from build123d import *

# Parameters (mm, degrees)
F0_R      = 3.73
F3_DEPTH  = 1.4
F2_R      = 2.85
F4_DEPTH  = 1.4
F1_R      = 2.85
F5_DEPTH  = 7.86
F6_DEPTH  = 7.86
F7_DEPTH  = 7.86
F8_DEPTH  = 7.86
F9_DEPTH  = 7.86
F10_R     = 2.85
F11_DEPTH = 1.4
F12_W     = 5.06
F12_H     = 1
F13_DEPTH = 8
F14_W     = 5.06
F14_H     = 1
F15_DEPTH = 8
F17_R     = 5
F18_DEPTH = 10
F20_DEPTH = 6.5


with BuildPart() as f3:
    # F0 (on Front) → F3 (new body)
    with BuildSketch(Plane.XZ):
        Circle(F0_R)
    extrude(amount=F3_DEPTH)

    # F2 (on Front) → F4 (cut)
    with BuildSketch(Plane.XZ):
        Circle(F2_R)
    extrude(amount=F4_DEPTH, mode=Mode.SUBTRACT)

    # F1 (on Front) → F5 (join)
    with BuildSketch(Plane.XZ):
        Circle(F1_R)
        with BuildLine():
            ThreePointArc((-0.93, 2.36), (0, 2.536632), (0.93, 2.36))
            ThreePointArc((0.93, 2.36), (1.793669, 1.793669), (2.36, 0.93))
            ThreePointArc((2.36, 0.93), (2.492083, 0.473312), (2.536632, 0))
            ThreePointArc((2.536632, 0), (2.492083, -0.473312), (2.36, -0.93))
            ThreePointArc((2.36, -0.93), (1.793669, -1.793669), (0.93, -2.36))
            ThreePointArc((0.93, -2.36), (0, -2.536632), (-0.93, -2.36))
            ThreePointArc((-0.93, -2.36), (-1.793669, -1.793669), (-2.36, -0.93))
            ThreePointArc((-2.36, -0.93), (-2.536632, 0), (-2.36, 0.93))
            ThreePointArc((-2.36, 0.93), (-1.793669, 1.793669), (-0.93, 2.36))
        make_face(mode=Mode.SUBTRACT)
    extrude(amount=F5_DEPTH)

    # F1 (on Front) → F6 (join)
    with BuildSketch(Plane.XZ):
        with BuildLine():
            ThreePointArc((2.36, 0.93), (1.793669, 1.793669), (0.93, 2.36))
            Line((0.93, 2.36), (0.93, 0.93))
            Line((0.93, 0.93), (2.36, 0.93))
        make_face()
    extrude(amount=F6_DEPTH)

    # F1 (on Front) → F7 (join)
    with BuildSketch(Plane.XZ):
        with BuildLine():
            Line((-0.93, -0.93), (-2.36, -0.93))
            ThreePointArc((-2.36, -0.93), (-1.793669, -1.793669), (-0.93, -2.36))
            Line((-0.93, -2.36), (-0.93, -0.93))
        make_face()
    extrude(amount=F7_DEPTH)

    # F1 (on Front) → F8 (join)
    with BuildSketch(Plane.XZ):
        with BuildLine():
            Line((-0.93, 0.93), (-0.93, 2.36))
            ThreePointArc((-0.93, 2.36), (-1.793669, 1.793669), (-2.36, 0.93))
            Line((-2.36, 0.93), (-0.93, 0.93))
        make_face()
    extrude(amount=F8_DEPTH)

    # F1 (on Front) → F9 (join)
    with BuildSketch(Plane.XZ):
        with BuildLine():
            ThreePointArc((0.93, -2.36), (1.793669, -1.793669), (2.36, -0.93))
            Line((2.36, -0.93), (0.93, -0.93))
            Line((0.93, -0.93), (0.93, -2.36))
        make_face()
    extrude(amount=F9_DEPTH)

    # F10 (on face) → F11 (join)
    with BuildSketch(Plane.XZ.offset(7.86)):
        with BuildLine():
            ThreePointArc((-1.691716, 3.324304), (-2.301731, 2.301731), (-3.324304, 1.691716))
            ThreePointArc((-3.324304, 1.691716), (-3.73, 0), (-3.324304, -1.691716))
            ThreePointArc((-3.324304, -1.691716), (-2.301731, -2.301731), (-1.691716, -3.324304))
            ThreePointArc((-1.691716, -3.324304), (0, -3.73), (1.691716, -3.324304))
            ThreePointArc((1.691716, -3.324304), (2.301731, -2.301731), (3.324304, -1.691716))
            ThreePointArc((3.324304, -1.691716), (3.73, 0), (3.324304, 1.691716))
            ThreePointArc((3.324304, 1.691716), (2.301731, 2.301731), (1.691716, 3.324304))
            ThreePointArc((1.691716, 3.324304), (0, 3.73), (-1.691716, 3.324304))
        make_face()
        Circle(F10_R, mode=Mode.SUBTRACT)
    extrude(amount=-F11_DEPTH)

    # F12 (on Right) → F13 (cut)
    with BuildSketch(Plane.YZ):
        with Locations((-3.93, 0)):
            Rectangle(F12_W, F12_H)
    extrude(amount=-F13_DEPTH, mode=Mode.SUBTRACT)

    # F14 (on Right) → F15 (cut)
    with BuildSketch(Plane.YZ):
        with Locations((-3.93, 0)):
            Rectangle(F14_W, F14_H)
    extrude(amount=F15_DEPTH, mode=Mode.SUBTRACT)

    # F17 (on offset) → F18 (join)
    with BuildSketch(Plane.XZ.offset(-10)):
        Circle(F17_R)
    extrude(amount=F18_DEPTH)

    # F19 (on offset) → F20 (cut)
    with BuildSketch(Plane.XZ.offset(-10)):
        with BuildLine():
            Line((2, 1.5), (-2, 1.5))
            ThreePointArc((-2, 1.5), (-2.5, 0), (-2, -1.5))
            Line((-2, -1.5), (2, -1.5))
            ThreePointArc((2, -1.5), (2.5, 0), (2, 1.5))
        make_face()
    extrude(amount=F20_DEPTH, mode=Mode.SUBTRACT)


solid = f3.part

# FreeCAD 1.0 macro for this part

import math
import FreeCAD as App
import Part
import Sketcher

V = App.Vector
Q = App.Units.Quantity

doc = App.newDocument("Part")
params = doc.addObject("Spreadsheet::Sheet", "Params")
for row, (alias, value) in enumerate([
    ("sketch1_diameter", "7.46 mm"),
    ("pad1_length", "1.4 mm"),
    ("sketch2_diameter", "5.7 mm"),
    ("pocket1_length", "1.4 mm"),
    ("sketch3_diameter", "5.7 mm"),
    ("pad2_length", "7.86 mm"),
    ("sketch4_width", "1.43 mm"),
    ("pad3_length", "7.86 mm"),
    ("sketch5_width", "1.43 mm"),
    ("pad4_length", "7.86 mm"),
    ("sketch6_width", "1.43 mm"),
    ("pad5_length", "7.86 mm"),
    ("sketch7_width", "1.43 mm"),
    ("pad6_length", "7.86 mm"),
    ("sketch8_diameter", "5.7 mm"),
    ("sketch8_radius", "3.73 mm"),
    ("pad7_length", "1.4 mm"),
    ("sketch9_height", "1 mm"),
    ("sketch9_width", "5.06 mm"),
    ("pocket2_length", "8 mm"),
    ("sketch10_height", "1 mm"),
    ("sketch10_width", "5.06 mm"),
    ("pocket3_length", "8 mm"),
    ("sketch11_diameter", "10 mm"),
    ("pad8_length", "10 mm"),
    ("sketch12_radius", "2.5 mm"),
    ("sketch12_width", "4 mm"),
    ("pocket4_length", "6.5 mm"),
], start=1):
    params.set(f"A{row}", alias)
    params.set(f"B{row}", "=" + value)
    params.setAlias(f"B{row}", alias)

body = doc.addObject("PartDesign::Body", "Body")

# Sketch on XZ plane
sketch1 = body.newObject("Sketcher::SketchObject", "Sketch")
sketch1.AttachmentSupport = (doc.getObject("XZ_Plane"), [""])
sketch1.MapMode = "FlatFace"
sketch1.addGeometry(Part.Circle(V(0, 0, 0), V(0, 0, 1), 3.7), False)
sketch1.addConstraint([
    Sketcher.Constraint("Coincident", 0, 3, -1, 1),
    Sketcher.Constraint("Diameter", 0, Q("7.46 mm")),
])
sketch1.setExpression("Constraints[1]", "Params.sketch1_diameter")
pad1 = body.newObject("PartDesign::Pad", "Pad")
pad1.Profile = sketch1
pad1.setExpression("Length", "Params.pad1_length")

# Sketch on XZ plane
sketch2 = body.newObject("Sketcher::SketchObject", "Sketch001")
sketch2.AttachmentSupport = (doc.getObject("XZ_Plane"), [""])
sketch2.MapMode = "FlatFace"
sketch2.addGeometry(Part.Circle(V(0, 0, 0), V(0, 0, 1), 2.9), False)
sketch2.addConstraint([
    Sketcher.Constraint("Coincident", 0, 3, -1, 1),
    Sketcher.Constraint("Diameter", 0, Q("5.7 mm")),
])
sketch2.setExpression("Constraints[1]", "Params.sketch2_diameter")
pocket1 = body.newObject("PartDesign::Pocket", "Pocket")
pocket1.Profile = sketch2
pocket1.setExpression("Length", "Params.pocket1_length")
pocket1.Reversed = True

# Sketch on XZ plane
sketch3 = body.newObject("Sketcher::SketchObject", "Sketch002")
sketch3.AttachmentSupport = (doc.getObject("XZ_Plane"), [""])
sketch3.MapMode = "FlatFace"
sketch3.addGeometry([
    Part.Circle(V(0, 0, 0), V(0, 0, 1), 2.9),  # 0
    Part.ArcOfCircle(Part.Circle(V(0, 0, 0), V(0, 0, 1), 2.5), math.radians(112), math.radians(158)),  # 1
    Part.ArcOfCircle(Part.Circle(V(0, 0, 0), V(0, 0, 1), 2.5), math.radians(68), math.radians(112)),  # 2
    Part.ArcOfCircle(Part.Circle(V(0, 0, 0), V(0, 0, 1), 2.5), math.radians(22), math.radians(68)),  # 3
    Part.ArcOfCircle(Part.Circle(V(0, 0, 0), V(0, 0, 1), 2.5), math.radians(0), math.radians(22)),  # 4
    Part.ArcOfCircle(Part.Circle(V(0, 0, 0), V(0, 0, 1), 2.5), math.radians(-22), math.radians(0)),  # 5
    Part.ArcOfCircle(Part.Circle(V(0, 0, 0), V(0, 0, 1), 2.5), math.radians(-68), math.radians(-22)),  # 6
    Part.ArcOfCircle(Part.Circle(V(0, 0, 0), V(0, 0, 1), 2.5), math.radians(-112), math.radians(-68)),  # 7
    Part.ArcOfCircle(Part.Circle(V(0, 0, 0), V(0, 0, 1), 2.5), math.radians(-158), math.radians(-112)),  # 8
    Part.ArcOfCircle(Part.Circle(V(0, 0, 0), V(0, 0, 1), 2.5), math.radians(158), math.radians(202)),  # 9
], False)
sketch3.addConstraint([
    Sketcher.Constraint("Tangent", 1, 1, 2, 2),
    Sketcher.Constraint("Tangent", 2, 1, 3, 2),
    Sketcher.Constraint("Tangent", 3, 1, 4, 2),
    Sketcher.Constraint("Tangent", 4, 1, 5, 2),
    Sketcher.Constraint("Tangent", 5, 1, 6, 2),
    Sketcher.Constraint("Tangent", 6, 1, 7, 2),
    Sketcher.Constraint("Tangent", 7, 1, 8, 2),
    Sketcher.Constraint("Tangent", 8, 1, 9, 2),
    Sketcher.Constraint("Tangent", 9, 1, 1, 2),
    Sketcher.Constraint("Coincident", 0, 3, -1, 1),
    Sketcher.Constraint("Coincident", 1, 3, -1, 1),
    Sketcher.Constraint("Coincident", 3, 3, -1, 1),
    Sketcher.Constraint("Coincident", 6, 3, -1, 1),
    Sketcher.Constraint("Coincident", 8, 3, -1, 1),
    Sketcher.Constraint("PointOnObject", 4, 1, -1),
    Sketcher.Constraint("Horizontal", 1, 1, 2, 1),
    Sketcher.Constraint("Horizontal", 6, 1, 7, 1),
    Sketcher.Constraint("Horizontal", 5, 1, 8, 1),
    Sketcher.Constraint("Horizontal", 3, 1, 9, 1),
    Sketcher.Constraint("Vertical", 3, 1, 5, 1),
    Sketcher.Constraint("Vertical", 2, 1, 6, 1),
    Sketcher.Constraint("Diameter", 0, Q("5.7 mm")),
    Sketcher.Constraint("DistanceX", 1, 1, -1, 1, Q("0.93 mm")),
    Sketcher.Constraint("DistanceY", -1, 1, 1, 1, Q("2.36 mm")),
    Sketcher.Constraint("DistanceX", -1, 1, 3, 1, Q("2.36 mm")),
])
sketch3.setExpression("Constraints[21]", "Params.sketch3_diameter")
pad2 = body.newObject("PartDesign::Pad", "Pad001")
pad2.Profile = sketch3
pad2.setExpression("Length", "Params.pad2_length")

# Sketch on XZ plane
sketch4 = body.newObject("Sketcher::SketchObject", "Sketch003")
sketch4.AttachmentSupport = (doc.getObject("XZ_Plane"), [""])
sketch4.MapMode = "FlatFace"
sketch4.addGeometry([
    Part.ArcOfCircle(Part.Circle(V(0, 0, 0), V(0, 0, 1), 2.5), math.radians(22), math.radians(68)),
    Part.LineSegment(V(0.9, 2.4, 0), V(0.9, 0.9, 0)),
    Part.LineSegment(V(0.9, 0.9, 0), V(2.4, 0.9, 0)),
], False)
sketch4.addConstraint([
    Sketcher.Constraint("Coincident", 0, 2, 1, 1),
    Sketcher.Constraint("Coincident", 1, 2, 2, 1),
    Sketcher.Constraint("Coincident", 2, 2, 0, 1),
    Sketcher.Constraint("Vertical", 1),
    Sketcher.Constraint("Horizontal", 2),
    Sketcher.Constraint("Coincident", 0, 3, -1, 1),
    Sketcher.Constraint("Equal", 2, 1),
    Sketcher.Constraint("DistanceX", 2, 1, 2, 2, Q("1.43 mm")),
    Sketcher.Constraint("DistanceX", -1, 1, 0, 2, Q("0.93 mm")),
])
sketch4.setExpression("Constraints[7]", "Params.sketch4_width")
pad3 = body.newObject("PartDesign::Pad", "Pad002")
pad3.Profile = sketch4
pad3.setExpression("Length", "Params.pad3_length")

# Sketch on XZ plane
sketch5 = body.newObject("Sketcher::SketchObject", "Sketch004")
sketch5.AttachmentSupport = (doc.getObject("XZ_Plane"), [""])
sketch5.MapMode = "FlatFace"
sketch5.addGeometry([
    Part.LineSegment(V(-0.9, -0.9, 0), V(-2.4, -0.9, 0)),
    Part.ArcOfCircle(Part.Circle(V(0, 0, 0), V(0, 0, 1), 2.5), math.radians(-158), math.radians(-112)),
    Part.LineSegment(V(-0.9, -2.4, 0), V(-0.9, -0.9, 0)),
], False)
sketch5.addConstraint([
    Sketcher.Constraint("Coincident", 0, 2, 1, 1),
    Sketcher.Constraint("Coincident", 1, 2, 2, 1),
    Sketcher.Constraint("Coincident", 2, 2, 0, 1),
    Sketcher.Constraint("Horizontal", 0),
    Sketcher.Constraint("Vertical", 2),
    Sketcher.Constraint("Coincident", 1, 3, -1, 1),
    Sketcher.Constraint("Equal", 0, 2),
    Sketcher.Constraint("DistanceX", 0, 2, 0, 1, Q("1.43 mm")),
    Sketcher.Constraint("DistanceX", 0, 2, -1, 1, Q("2.36 mm")),
])
sketch5.setExpression("Constraints[7]", "Params.sketch5_width")
pad4 = body.newObject("PartDesign::Pad", "Pad003")
pad4.Profile = sketch5
pad4.setExpression("Length", "Params.pad4_length")

# Sketch on XZ plane
sketch6 = body.newObject("Sketcher::SketchObject", "Sketch005")
sketch6.AttachmentSupport = (doc.getObject("XZ_Plane"), [""])
sketch6.MapMode = "FlatFace"
sketch6.addGeometry([
    Part.LineSegment(V(-0.9, 0.9, 0), V(-0.9, 2.4, 0)),
    Part.ArcOfCircle(Part.Circle(V(0, 0, 0), V(0, 0, 1), 2.5), math.radians(112), math.radians(158)),
    Part.LineSegment(V(-2.4, 0.9, 0), V(-0.9, 0.9, 0)),
], False)
sketch6.addConstraint([
    Sketcher.Constraint("Coincident", 0, 2, 1, 1),
    Sketcher.Constraint("Coincident", 1, 2, 2, 1),
    Sketcher.Constraint("Coincident", 2, 2, 0, 1),
    Sketcher.Constraint("Vertical", 0),
    Sketcher.Constraint("Horizontal", 2),
    Sketcher.Constraint("Coincident", 1, 3, -1, 1),
    Sketcher.Constraint("Equal", 2, 0),
    Sketcher.Constraint("DistanceX", 2, 1, 2, 2, Q("1.43 mm")),
    Sketcher.Constraint("DistanceX", 0, 2, -1, 1, Q("0.93 mm")),
])
sketch6.setExpression("Constraints[7]", "Params.sketch6_width")
pad5 = body.newObject("PartDesign::Pad", "Pad004")
pad5.Profile = sketch6
pad5.setExpression("Length", "Params.pad5_length")

# Sketch on XZ plane
sketch7 = body.newObject("Sketcher::SketchObject", "Sketch006")
sketch7.AttachmentSupport = (doc.getObject("XZ_Plane"), [""])
sketch7.MapMode = "FlatFace"
sketch7.addGeometry([
    Part.ArcOfCircle(Part.Circle(V(0, 0, 0), V(0, 0, 1), 2.5), math.radians(-68), math.radians(-22)),
    Part.LineSegment(V(2.4, -0.9, 0), V(0.9, -0.9, 0)),
    Part.LineSegment(V(0.9, -0.9, 0), V(0.9, -2.4, 0)),
], False)
sketch7.addConstraint([
    Sketcher.Constraint("Coincident", 0, 2, 1, 1),
    Sketcher.Constraint("Coincident", 1, 2, 2, 1),
    Sketcher.Constraint("Coincident", 2, 2, 0, 1),
    Sketcher.Constraint("Horizontal", 1),
    Sketcher.Constraint("Vertical", 2),
    Sketcher.Constraint("Coincident", 0, 3, -1, 1),
    Sketcher.Constraint("Equal", 1, 2),
    Sketcher.Constraint("DistanceX", 1, 2, 1, 1, Q("1.43 mm")),
    Sketcher.Constraint("DistanceX", -1, 1, 0, 2, Q("2.36 mm")),
])
sketch7.setExpression("Constraints[7]", "Params.sketch7_width")
pad6 = body.newObject("PartDesign::Pad", "Pad005")
pad6.Profile = sketch7
pad6.setExpression("Length", "Params.pad6_length")

# Sketch on XZ plane
sketch8 = body.newObject("Sketcher::SketchObject", "Sketch007")
sketch8.AttachmentSupport = (doc.getObject("XZ_Plane"), [""])
sketch8.MapMode = "FlatFace"
sketch8.AttachmentOffset = App.Placement(V(0, 0, 7.86), App.Rotation())
sketch8.addGeometry([
    Part.ArcOfCircle(Part.Circle(V(-4, 4, 0), V(0, 0, 1), 2.4), math.radians(-73), math.radians(-17)),  # 0
    Part.ArcOfCircle(Part.Circle(V(0, 0, 0), V(0, 0, 1), 3.7), math.radians(153), math.radians(207)),  # 1
    Part.ArcOfCircle(Part.Circle(V(-4, -4, 0), V(0, 0, 1), 2.4), math.radians(17), math.radians(73)),  # 2
    Part.ArcOfCircle(Part.Circle(V(0, 0, 0), V(0, 0, 1), 3.7), math.radians(-117), math.radians(-63)),  # 3
    Part.ArcOfCircle(Part.Circle(V(4, -4, 0), V(0, 0, 1), 2.4), math.radians(107), math.radians(163)),  # 4
    Part.ArcOfCircle(Part.Circle(V(0, 0, 0), V(0, 0, 1), 3.7), math.radians(-27), math.radians(27)),  # 5
    Part.ArcOfCircle(Part.Circle(V(4, 4, 0), V(0, 0, 1), 2.4), math.radians(-163), math.radians(-107)),  # 6
    Part.ArcOfCircle(Part.Circle(V(0, 0, 0), V(0, 0, 1), 3.7), math.radians(63), math.radians(117)),  # 7
    Part.Circle(V(0, 0, 0), V(0, 0, 1), 2.9),  # 8
], False)
sketch8.addConstraint([
    Sketcher.Constraint("Coincident", 0, 1, 1, 1),
    Sketcher.Constraint("Coincident", 1, 2, 2, 2),
    Sketcher.Constraint("Coincident", 2, 1, 3, 1),
    Sketcher.Constraint("Coincident", 3, 2, 4, 2),
    Sketcher.Constraint("Coincident", 4, 1, 5, 1),
    Sketcher.Constraint("Coincident", 5, 2, 6, 2),
    Sketcher.Constraint("Coincident", 6, 1, 7, 1),
    Sketcher.Constraint("Coincident", 7, 2, 0, 2),
    Sketcher.Constraint("Coincident", 1, 3, -1, 1),
    Sketcher.Constraint("Coincident", 3, 3, -1, 1),
    Sketcher.Constraint("Coincident", 5, 3, -1, 1),
    Sketcher.Constraint("Coincident", 7, 3, -1, 1),
    Sketcher.Constraint("Coincident", 8, 3, -1, 1),
    Sketcher.Constraint("Equal", 0, 2),
    Sketcher.Constraint("Equal", 1, 3),
    Sketcher.Constraint("Equal", 2, 4),
    Sketcher.Constraint("Equal", 3, 5),
    Sketcher.Constraint("Equal", 4, 6),
    Sketcher.Constraint("Equal", 5, 7),
    Sketcher.Constraint("Symmetric", 0, 3, 4, 3, -1, 1),
    Sketcher.Constraint("Symmetric", 2, 3, 6, 3, -1, 1),
    Sketcher.Constraint("Symmetric", 2, 3, 4, 3, -2),
    Sketcher.Constraint("Diameter", 8, Q("5.7 mm")),
    Sketcher.Constraint("Radius", 1, Q("3.73 mm")),
    Sketcher.Constraint("Radius", 0, Q("2.430004 mm")),
    Sketcher.Constraint("DistanceX", 0, 3, 0, 1, Q("0.695699 mm")),
    Sketcher.Constraint("DistanceY", 2, 3, 2, 1, Q("0.695699 mm")),
])
sketch8.setExpression("Constraints[22]", "Params.sketch8_diameter")
sketch8.setExpression("Constraints[23]", "Params.sketch8_radius")
pad7 = body.newObject("PartDesign::Pad", "Pad006")
pad7.Profile = sketch8
pad7.setExpression("Length", "Params.pad7_length")
pad7.Reversed = True

# Sketch on YZ plane
sketch9 = body.newObject("Sketcher::SketchObject", "Sketch008")
sketch9.AttachmentSupport = (doc.getObject("YZ_Plane"), [""])
sketch9.MapMode = "FlatFace"
sketch9.addGeometry([
    Part.LineSegment(V(-6.5, 0.5, 0), V(-6.5, -0.5, 0)),
    Part.LineSegment(V(-6.5, -0.5, 0), V(-1.4, -0.5, 0)),
    Part.LineSegment(V(-1.4, -0.5, 0), V(-1.4, 0.5, 0)),
    Part.LineSegment(V(-1.4, 0.5, 0), V(-6.5, 0.5, 0)),
], False)
sketch9.addConstraint([
    Sketcher.Constraint("Coincident", 0, 2, 1, 1),
    Sketcher.Constraint("Coincident", 1, 2, 2, 1),
    Sketcher.Constraint("Coincident", 2, 2, 3, 1),
    Sketcher.Constraint("Coincident", 3, 2, 0, 1),
    Sketcher.Constraint("Vertical", 0),
    Sketcher.Constraint("Horizontal", 1),
    Sketcher.Constraint("Vertical", 2),
    Sketcher.Constraint("Horizontal", 3),
    Sketcher.Constraint("DistanceY", 0, 2, 0, 1, Q("1 mm")),
    Sketcher.Constraint("DistanceX", 1, 1, 1, 2, Q("5.06 mm")),
    Sketcher.Constraint("DistanceY", 0, 2, -1, 1, Q("0.5 mm")),
    Sketcher.Constraint("DistanceX", 1, 2, -1, 1, Q("1.4 mm")),
])
sketch9.setExpression("Constraints[8]", "Params.sketch9_height")
sketch9.setExpression("Constraints[9]", "Params.sketch9_width")
pocket2 = body.newObject("PartDesign::Pocket", "Pocket001")
pocket2.Profile = sketch9
pocket2.setExpression("Length", "Params.pocket2_length")

# Sketch on YZ plane
sketch10 = body.newObject("Sketcher::SketchObject", "Sketch009")
sketch10.AttachmentSupport = (doc.getObject("YZ_Plane"), [""])
sketch10.MapMode = "FlatFace"
sketch10.addGeometry([
    Part.LineSegment(V(-6.5, 0.5, 0), V(-6.5, -0.5, 0)),
    Part.LineSegment(V(-6.5, -0.5, 0), V(-1.4, -0.5, 0)),
    Part.LineSegment(V(-1.4, -0.5, 0), V(-1.4, 0.5, 0)),
    Part.LineSegment(V(-1.4, 0.5, 0), V(-6.5, 0.5, 0)),
], False)
sketch10.addConstraint([
    Sketcher.Constraint("Coincident", 0, 2, 1, 1),
    Sketcher.Constraint("Coincident", 1, 2, 2, 1),
    Sketcher.Constraint("Coincident", 2, 2, 3, 1),
    Sketcher.Constraint("Coincident", 3, 2, 0, 1),
    Sketcher.Constraint("Vertical", 0),
    Sketcher.Constraint("Horizontal", 1),
    Sketcher.Constraint("Vertical", 2),
    Sketcher.Constraint("Horizontal", 3),
    Sketcher.Constraint("DistanceY", 0, 2, 0, 1, Q("1 mm")),
    Sketcher.Constraint("DistanceX", 1, 1, 1, 2, Q("5.06 mm")),
    Sketcher.Constraint("DistanceY", 0, 2, -1, 1, Q("0.5 mm")),
    Sketcher.Constraint("DistanceX", 1, 2, -1, 1, Q("1.4 mm")),
])
sketch10.setExpression("Constraints[8]", "Params.sketch10_height")
sketch10.setExpression("Constraints[9]", "Params.sketch10_width")
pocket3 = body.newObject("PartDesign::Pocket", "Pocket002")
pocket3.Profile = sketch10
pocket3.setExpression("Length", "Params.pocket3_length")
pocket3.Reversed = True

# Sketch on XZ plane
sketch11 = body.newObject("Sketcher::SketchObject", "Sketch010")
sketch11.AttachmentSupport = (doc.getObject("XZ_Plane"), [""])
sketch11.MapMode = "FlatFace"
sketch11.AttachmentOffset = App.Placement(V(0, 0, -10), App.Rotation())
sketch11.addGeometry(Part.Circle(V(0, 0, 0), V(0, 0, 1), 5), False)
sketch11.addConstraint([
    Sketcher.Constraint("Coincident", 0, 3, -1, 1),
    Sketcher.Constraint("Diameter", 0, Q("10 mm")),
])
sketch11.setExpression("Constraints[1]", "Params.sketch11_diameter")
pad8 = body.newObject("PartDesign::Pad", "Pad007")
pad8.Profile = sketch11
pad8.setExpression("Length", "Params.pad8_length")

# Sketch on XZ plane
sketch12 = body.newObject("Sketcher::SketchObject", "Sketch011")
sketch12.AttachmentSupport = (doc.getObject("XZ_Plane"), [""])
sketch12.MapMode = "FlatFace"
sketch12.AttachmentOffset = App.Placement(V(0, 0, -10), App.Rotation())
sketch12.addGeometry([
    Part.LineSegment(V(2, 1.5, 0), V(-2, 1.5, 0)),
    Part.ArcOfCircle(Part.Circle(V(0, 0, 0), V(0, 0, 1), 2.5), math.radians(143), math.radians(217)),
    Part.LineSegment(V(-2, -1.5, 0), V(2, -1.5, 0)),
    Part.ArcOfCircle(Part.Circle(V(0, 0, 0), V(0, 0, 1), 2.5), math.radians(-37), math.radians(37)),
], False)
sketch12.addConstraint([
    Sketcher.Constraint("Coincident", 0, 2, 1, 1),
    Sketcher.Constraint("Coincident", 1, 2, 2, 1),
    Sketcher.Constraint("Coincident", 2, 2, 3, 1),
    Sketcher.Constraint("Coincident", 3, 2, 0, 1),
    Sketcher.Constraint("Horizontal", 0),
    Sketcher.Constraint("Horizontal", 2),
    Sketcher.Constraint("Coincident", 1, 3, -1, 1),
    Sketcher.Constraint("Coincident", 3, 3, -1, 1),
    Sketcher.Constraint("Equal", 1, 3),
    Sketcher.Constraint("Vertical", 0, 2, 1, 2),
    Sketcher.Constraint("Radius", 1, Q("2.5 mm")),
    Sketcher.Constraint("DistanceX", 0, 2, 0, 1, Q("4 mm")),
])
sketch12.setExpression("Constraints[10]", "Params.sketch12_radius")
sketch12.setExpression("Constraints[11]", "Params.sketch12_width")
pocket4 = body.newObject("PartDesign::Pocket", "Pocket003")
pocket4.Profile = sketch12
pocket4.setExpression("Length", "Params.pocket4_length")
pocket4.Reversed = True

doc.recompute()
